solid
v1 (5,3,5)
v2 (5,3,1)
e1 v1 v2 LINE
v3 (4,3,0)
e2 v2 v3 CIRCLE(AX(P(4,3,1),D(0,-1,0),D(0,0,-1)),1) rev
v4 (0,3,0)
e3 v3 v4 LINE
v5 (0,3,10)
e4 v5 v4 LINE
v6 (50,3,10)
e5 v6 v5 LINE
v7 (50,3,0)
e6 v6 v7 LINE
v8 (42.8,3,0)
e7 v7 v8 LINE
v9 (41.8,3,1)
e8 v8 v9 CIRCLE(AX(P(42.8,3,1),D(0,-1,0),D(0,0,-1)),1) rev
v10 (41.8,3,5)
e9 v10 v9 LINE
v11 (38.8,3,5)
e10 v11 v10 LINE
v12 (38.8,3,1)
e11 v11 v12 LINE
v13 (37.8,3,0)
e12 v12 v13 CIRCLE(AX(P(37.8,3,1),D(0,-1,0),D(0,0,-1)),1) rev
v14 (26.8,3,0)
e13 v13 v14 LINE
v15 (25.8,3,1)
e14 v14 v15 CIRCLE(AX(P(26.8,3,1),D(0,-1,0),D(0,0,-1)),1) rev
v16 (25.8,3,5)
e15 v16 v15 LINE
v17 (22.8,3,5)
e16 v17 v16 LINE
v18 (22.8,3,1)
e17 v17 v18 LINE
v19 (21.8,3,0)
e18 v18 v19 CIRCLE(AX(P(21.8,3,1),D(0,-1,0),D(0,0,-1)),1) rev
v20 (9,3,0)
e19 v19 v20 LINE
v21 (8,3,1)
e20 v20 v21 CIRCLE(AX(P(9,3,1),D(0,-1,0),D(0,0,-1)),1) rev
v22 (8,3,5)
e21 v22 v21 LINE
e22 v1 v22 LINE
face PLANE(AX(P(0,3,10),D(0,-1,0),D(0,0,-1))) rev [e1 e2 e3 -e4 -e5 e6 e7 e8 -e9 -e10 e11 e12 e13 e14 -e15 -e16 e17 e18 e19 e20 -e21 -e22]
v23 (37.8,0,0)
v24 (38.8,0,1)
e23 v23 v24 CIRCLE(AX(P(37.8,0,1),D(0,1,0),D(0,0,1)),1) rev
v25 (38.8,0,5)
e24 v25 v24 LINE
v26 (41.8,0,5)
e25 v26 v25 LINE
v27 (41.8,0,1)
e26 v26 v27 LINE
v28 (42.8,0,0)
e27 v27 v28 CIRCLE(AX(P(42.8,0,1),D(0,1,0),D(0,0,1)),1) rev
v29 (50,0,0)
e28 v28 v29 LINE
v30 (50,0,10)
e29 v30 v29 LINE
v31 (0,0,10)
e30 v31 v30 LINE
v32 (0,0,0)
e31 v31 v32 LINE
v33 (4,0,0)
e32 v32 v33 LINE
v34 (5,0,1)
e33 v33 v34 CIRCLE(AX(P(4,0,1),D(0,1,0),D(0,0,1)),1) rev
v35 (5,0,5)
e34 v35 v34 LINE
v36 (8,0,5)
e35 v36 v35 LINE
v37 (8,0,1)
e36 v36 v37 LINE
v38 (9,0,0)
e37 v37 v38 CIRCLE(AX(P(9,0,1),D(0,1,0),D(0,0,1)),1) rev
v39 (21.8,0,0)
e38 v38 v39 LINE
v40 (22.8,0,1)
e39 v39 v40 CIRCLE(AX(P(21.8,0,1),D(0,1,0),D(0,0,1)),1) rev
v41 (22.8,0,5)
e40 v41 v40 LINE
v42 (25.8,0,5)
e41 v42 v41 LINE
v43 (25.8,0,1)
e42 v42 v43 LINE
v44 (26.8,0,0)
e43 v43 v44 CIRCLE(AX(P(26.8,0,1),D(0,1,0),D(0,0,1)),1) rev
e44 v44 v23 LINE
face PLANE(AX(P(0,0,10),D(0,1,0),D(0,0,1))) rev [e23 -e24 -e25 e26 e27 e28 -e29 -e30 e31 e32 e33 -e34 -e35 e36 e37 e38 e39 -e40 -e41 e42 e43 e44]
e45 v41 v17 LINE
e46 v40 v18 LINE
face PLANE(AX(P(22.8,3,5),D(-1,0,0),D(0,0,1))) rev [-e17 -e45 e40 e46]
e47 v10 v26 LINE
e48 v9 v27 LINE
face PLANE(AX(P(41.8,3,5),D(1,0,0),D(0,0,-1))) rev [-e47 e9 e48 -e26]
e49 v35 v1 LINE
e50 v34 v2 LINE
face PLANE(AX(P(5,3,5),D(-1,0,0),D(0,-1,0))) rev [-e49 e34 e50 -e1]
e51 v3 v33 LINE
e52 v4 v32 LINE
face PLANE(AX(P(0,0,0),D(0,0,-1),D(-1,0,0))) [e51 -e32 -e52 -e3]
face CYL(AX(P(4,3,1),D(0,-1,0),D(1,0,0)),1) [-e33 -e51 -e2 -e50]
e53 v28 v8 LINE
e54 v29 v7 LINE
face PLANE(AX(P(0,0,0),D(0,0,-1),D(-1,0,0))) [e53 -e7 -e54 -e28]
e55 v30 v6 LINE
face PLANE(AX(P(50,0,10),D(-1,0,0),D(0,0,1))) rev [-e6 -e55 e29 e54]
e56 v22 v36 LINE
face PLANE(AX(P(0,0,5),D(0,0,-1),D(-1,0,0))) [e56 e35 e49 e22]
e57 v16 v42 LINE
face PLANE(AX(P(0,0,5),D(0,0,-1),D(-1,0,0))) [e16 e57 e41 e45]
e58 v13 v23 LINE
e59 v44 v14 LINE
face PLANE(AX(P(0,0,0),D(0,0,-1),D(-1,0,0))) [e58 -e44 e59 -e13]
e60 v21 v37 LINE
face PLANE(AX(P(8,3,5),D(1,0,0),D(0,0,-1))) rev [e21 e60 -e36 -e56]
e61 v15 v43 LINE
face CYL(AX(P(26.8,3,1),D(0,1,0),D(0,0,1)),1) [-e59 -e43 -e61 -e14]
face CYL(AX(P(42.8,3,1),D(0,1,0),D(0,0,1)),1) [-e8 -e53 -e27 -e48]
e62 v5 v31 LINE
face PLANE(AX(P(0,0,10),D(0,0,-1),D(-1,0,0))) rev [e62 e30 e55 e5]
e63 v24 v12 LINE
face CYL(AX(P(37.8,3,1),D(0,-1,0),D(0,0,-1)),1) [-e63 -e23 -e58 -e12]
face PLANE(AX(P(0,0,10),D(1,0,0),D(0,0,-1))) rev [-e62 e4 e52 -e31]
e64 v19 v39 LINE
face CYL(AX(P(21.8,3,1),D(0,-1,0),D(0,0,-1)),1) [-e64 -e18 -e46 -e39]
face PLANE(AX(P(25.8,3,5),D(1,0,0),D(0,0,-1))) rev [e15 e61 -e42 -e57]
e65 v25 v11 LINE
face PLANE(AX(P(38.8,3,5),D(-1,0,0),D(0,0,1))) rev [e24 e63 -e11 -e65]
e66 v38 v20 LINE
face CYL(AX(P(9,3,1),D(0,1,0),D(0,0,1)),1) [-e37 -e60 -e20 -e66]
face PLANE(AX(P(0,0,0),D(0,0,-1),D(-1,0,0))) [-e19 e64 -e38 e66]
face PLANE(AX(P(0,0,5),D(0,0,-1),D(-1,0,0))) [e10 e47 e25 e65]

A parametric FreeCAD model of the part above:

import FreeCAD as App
import Part
import Sketcher
from FreeCAD import Vector
Q = App.Units.Quantity


def edges_at(feature, points):
    """Names of the edges that pass closest to the given points."""
    edges = feature.Shape.Edges
    near = lambda p: min(range(len(edges)), key=lambda i: edges[i].distToShape(Part.Vertex(*p))[0])
    return sorted({f"Edge{near(p) + 1}" for p in points})


def add_polygon(sketch, points):
    """Adds a closed chain of lines whose ends are joined by coincident constraints."""
    first, n = sketch.GeometryCount, len(points)
    for a, b in zip(points, points[1:] + points[:1]):
        sketch.addGeometry(Part.LineSegment(App.Vector(*a, 0), App.Vector(*b, 0)), False)
    for i in range(n):
        sketch.addConstraint(Sketcher.Constraint("Coincident", first + i, 2, first + (i + 1) % n, 1))

doc = App.newDocument("Part")
body = doc.addObject("PartDesign::Body", "Body")

# Sketch on XY plane
sketch1 = body.newObject("Sketcher::SketchObject", "Sketch")
sketch1.AttachmentSupport = (doc.getObject("XY_Plane"), [""])
sketch1.MapMode = "FlatFace"
add_polygon(sketch1, [(0, 3), (0, 0), (50, 0), (50, 3)])  # lines 0-3
sketch1.addConstraint(Sketcher.Constraint("Vertical", 0))
sketch1.addConstraint(Sketcher.Constraint("Horizontal", 1))
sketch1.addConstraint(Sketcher.Constraint("Vertical", 2))
sketch1.addConstraint(Sketcher.Constraint("Horizontal", 3))
sketch1.addConstraint(Sketcher.Constraint("Coincident", 0, 2, -1, 1))
sketch1.addConstraint(Sketcher.Constraint("DistanceX", 1, 1, 1, 2, Q("50 mm")))
sketch1.addConstraint(Sketcher.Constraint("DistanceY", 0, 2, 0, 1, Q("3 mm")))
pad1 = body.newObject("PartDesign::Pad", "Pad")
pad1.Profile = sketch1
pad1.Length = 10

# Sketch on XY plane
sketch2 = body.newObject("Sketcher::SketchObject", "Sketch001")
sketch2.AttachmentSupport = (doc.getObject("XY_Plane"), [""])
sketch2.MapMode = "FlatFace"
add_polygon(sketch2, [(82.8, 3), (82.8, 0), (79.8, 0), (79.8, 3)])  # lines 0-3
add_polygon(sketch2, [(61.8, 3), (61.8, 0), (58.8, 0), (58.8, 3)])  # lines 4-7
add_polygon(sketch2, [(41.8, 3), (41.8, 0), (38.8, 0), (38.8, 3)])  # lines 8-11
add_polygon(sketch2, [(25.8, 3), (25.8, 0), (22.8, 0), (22.8, 3)])  # lines 12-15
add_polygon(sketch2, [(8, 3), (8, 0), (5, 0), (5, 3)])  # lines 16-19
sketch2.addConstraint(Sketcher.Constraint("Vertical", 0))
sketch2.addConstraint(Sketcher.Constraint("Horizontal", 1))
sketch2.addConstraint(Sketcher.Constraint("Vertical", 2))
sketch2.addConstraint(Sketcher.Constraint("Horizontal", 3))
sketch2.addConstraint(Sketcher.Constraint("Vertical", 4))
sketch2.addConstraint(Sketcher.Constraint("Horizontal", 5))
sketch2.addConstraint(Sketcher.Constraint("Vertical", 6))
sketch2.addConstraint(Sketcher.Constraint("Horizontal", 7))
sketch2.addConstraint(Sketcher.Constraint("Vertical", 8))
sketch2.addConstraint(Sketcher.Constraint("Horizontal", 9))
sketch2.addConstraint(Sketcher.Constraint("Vertical", 10))
sketch2.addConstraint(Sketcher.Constraint("Horizontal", 11))
sketch2.addConstraint(Sketcher.Constraint("Vertical", 12))
sketch2.addConstraint(Sketcher.Constraint("Horizontal", 13))
sketch2.addConstraint(Sketcher.Constraint("Vertical", 14))
sketch2.addConstraint(Sketcher.Constraint("Horizontal", 15))
sketch2.addConstraint(Sketcher.Constraint("Vertical", 16))
sketch2.addConstraint(Sketcher.Constraint("Horizontal", 17))
sketch2.addConstraint(Sketcher.Constraint("Vertical", 18))
sketch2.addConstraint(Sketcher.Constraint("Horizontal", 19))
sketch2.addConstraint(Sketcher.Constraint("PointOnObject", 0, 2, -1))
sketch2.addConstraint(Sketcher.Constraint("PointOnObject", 4, 2, -1))
sketch2.addConstraint(Sketcher.Constraint("PointOnObject", 8, 2, -1))
sketch2.addConstraint(Sketcher.Constraint("PointOnObject", 12, 2, -1))
sketch2.addConstraint(Sketcher.Constraint("PointOnObject", 16, 2, -1))
sketch2.addConstraint(Sketcher.Constraint("Horizontal", 3, 2, 6, 2))
sketch2.addConstraint(Sketcher.Constraint("Horizontal", 7, 2, 10, 2))
sketch2.addConstraint(Sketcher.Constraint("Horizontal", 11, 2, 14, 2))
sketch2.addConstraint(Sketcher.Constraint("Horizontal", 15, 2, 18, 2))
sketch2.addConstraint(Sketcher.Constraint("Equal", 3, 5))
sketch2.addConstraint(Sketcher.Constraint("Equal", 7, 9))
sketch2.addConstraint(Sketcher.Constraint("Equal", 11, 13))
sketch2.addConstraint(Sketcher.Constraint("Equal", 15, 17))
sketch2.addConstraint(Sketcher.Constraint("Equal", 19, 0))
sketch2.addConstraint(Sketcher.Constraint("DistanceX", 1, 2, 1, 1, Q("3 mm")))
sketch2.addConstraint(Sketcher.Constraint("DistanceX", -1, 1, 16, 2, Q("8 mm")))
sketch2.addConstraint(Sketcher.Constraint("DistanceX", 4, 2, 1, 2, Q("18 mm")))
sketch2.addConstraint(Sketcher.Constraint("DistanceX", 8, 2, 5, 2, Q("17 mm")))
sketch2.addConstraint(Sketcher.Constraint("DistanceX", 12, 2, 9, 2, Q("13 mm")))
sketch2.addConstraint(Sketcher.Constraint("DistanceX", -1, 1, 0, 2, Q("82.8 mm")))
pocket1 = body.newObject("PartDesign::Pocket", "Pocket")
pocket1.Profile = sketch2
pocket1.Length = 5
pocket1.Reversed = True
doc.recompute()

fillet = body.newObject("PartDesign::Fillet", "Fillet")
fillet.Base = (pocket1, edges_at(pocket1, [
    (38.8, 1.5, 0),
    (41.8, 1.5, 0),
    (22.8, 1.5, 0),
    (25.8, 1.5, 0),
    (5, 1.5, 0),
    (8, 1.5, 0),
]))
fillet.Radius = 1

doc.recompute()
